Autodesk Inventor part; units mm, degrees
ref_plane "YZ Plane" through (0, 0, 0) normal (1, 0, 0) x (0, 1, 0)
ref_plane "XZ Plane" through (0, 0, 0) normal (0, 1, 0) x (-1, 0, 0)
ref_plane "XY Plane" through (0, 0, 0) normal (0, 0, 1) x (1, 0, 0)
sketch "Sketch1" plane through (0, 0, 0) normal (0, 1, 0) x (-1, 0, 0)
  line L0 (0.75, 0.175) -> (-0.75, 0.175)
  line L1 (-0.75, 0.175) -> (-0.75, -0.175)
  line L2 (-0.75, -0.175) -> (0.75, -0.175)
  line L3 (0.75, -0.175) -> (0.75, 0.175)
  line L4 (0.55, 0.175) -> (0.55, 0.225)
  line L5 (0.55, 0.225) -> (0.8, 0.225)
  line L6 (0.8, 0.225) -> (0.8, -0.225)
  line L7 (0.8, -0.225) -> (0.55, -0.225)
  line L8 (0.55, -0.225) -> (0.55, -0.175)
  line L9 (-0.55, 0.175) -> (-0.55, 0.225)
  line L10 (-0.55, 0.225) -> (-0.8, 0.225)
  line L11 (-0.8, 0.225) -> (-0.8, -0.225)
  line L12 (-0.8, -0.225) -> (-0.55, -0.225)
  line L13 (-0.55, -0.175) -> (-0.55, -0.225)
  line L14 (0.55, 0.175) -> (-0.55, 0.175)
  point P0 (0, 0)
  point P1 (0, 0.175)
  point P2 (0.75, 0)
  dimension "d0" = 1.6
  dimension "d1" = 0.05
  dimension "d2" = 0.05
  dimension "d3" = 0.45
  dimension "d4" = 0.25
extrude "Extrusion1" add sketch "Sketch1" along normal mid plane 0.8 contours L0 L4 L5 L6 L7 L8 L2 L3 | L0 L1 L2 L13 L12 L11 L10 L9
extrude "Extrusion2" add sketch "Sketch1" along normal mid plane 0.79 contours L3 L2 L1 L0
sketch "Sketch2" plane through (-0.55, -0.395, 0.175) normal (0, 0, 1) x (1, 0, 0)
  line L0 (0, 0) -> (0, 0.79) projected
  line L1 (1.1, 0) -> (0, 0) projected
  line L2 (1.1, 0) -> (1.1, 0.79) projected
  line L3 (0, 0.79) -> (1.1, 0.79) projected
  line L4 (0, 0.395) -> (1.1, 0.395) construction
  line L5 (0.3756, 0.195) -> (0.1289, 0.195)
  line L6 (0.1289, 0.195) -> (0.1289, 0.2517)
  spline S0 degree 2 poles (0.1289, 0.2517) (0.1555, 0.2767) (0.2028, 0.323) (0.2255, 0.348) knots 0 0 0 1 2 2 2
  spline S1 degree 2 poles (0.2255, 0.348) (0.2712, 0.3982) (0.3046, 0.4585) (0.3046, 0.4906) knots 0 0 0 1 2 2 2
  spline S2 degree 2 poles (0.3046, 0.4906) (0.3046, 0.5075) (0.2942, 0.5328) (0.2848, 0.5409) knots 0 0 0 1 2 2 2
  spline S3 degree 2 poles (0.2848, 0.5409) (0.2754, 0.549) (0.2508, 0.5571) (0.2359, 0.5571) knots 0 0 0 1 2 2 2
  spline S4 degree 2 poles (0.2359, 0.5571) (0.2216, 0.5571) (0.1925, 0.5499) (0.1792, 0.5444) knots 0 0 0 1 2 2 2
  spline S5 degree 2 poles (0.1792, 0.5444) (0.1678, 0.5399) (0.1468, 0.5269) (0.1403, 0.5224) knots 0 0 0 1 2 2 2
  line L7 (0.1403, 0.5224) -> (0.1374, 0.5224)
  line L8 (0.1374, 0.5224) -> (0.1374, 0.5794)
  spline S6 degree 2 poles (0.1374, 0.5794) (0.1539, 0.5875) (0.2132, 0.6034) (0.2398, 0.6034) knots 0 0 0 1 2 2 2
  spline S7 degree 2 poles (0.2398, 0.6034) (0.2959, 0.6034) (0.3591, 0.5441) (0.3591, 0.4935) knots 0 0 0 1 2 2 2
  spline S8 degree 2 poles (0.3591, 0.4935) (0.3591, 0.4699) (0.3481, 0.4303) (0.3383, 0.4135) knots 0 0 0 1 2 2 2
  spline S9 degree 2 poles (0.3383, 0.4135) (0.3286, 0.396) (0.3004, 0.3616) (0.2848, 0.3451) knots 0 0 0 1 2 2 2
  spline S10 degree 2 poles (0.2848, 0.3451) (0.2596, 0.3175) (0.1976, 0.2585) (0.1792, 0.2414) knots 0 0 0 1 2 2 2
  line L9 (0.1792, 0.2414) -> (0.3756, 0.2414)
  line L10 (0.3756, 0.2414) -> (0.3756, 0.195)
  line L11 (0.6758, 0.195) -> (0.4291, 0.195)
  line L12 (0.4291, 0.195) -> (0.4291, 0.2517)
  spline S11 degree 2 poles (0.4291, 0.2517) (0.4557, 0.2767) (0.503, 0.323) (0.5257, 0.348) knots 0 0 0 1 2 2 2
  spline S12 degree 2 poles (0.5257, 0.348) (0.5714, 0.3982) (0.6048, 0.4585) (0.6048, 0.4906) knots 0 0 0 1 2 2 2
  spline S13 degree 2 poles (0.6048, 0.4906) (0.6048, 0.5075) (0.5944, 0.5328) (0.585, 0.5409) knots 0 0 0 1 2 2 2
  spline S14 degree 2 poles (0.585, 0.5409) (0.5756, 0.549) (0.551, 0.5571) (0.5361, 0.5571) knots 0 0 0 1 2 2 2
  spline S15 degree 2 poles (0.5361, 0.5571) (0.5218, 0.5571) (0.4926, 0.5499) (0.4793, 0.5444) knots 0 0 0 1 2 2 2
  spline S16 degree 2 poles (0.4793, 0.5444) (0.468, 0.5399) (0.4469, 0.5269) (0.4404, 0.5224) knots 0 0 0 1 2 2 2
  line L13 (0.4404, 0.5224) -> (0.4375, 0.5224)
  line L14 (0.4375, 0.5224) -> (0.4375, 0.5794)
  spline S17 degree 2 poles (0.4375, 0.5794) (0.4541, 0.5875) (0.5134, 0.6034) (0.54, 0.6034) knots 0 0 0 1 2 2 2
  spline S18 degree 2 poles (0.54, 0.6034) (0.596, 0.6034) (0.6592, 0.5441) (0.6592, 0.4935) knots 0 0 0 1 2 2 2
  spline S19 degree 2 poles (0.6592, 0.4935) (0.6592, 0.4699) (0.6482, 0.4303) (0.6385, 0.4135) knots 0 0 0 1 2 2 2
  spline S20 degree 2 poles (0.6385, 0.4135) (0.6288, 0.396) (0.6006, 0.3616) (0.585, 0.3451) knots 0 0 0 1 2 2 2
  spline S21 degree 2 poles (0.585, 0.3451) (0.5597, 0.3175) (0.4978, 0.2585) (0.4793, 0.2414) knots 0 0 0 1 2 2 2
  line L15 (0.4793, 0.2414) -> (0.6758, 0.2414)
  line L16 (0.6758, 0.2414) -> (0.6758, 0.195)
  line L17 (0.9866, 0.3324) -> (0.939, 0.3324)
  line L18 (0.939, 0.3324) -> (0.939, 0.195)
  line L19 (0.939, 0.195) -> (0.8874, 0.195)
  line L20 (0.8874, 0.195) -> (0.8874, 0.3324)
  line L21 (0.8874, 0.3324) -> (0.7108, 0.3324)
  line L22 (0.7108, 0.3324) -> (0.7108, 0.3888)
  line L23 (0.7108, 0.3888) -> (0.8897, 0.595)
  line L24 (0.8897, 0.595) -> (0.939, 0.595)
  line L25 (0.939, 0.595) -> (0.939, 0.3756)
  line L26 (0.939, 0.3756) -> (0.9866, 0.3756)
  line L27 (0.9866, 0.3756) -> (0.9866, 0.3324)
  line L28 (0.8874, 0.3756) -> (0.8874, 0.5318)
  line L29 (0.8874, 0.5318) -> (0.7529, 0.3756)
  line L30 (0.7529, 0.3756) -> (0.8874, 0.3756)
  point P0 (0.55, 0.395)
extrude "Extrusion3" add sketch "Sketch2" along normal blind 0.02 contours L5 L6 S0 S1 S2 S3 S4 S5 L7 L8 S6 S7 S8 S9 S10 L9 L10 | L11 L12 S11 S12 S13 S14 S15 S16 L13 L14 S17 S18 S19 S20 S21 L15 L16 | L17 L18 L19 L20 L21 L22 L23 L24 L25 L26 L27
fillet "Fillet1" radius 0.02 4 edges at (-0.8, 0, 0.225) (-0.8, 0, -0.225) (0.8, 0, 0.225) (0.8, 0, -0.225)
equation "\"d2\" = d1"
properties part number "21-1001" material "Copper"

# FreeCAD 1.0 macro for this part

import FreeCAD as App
import Part
import Sketcher
Q = App.Units.Quantity


def edges_at(feature, points):
    """Names of the edges that pass closest to the given points."""
    edges = feature.Shape.Edges
    near = lambda p: min(range(len(edges)), key=lambda i: edges[i].distToShape(Part.Vertex(*p))[0])
    return sorted({f"Edge{near(p) + 1}" for p in points})


def add_polygon(sketch, points):
    """Adds a closed chain of lines whose ends are joined by coincident constraints."""
    first, n = sketch.GeometryCount, len(points)
    for a, b in zip(points, points[1:] + points[:1]):
        sketch.addGeometry(Part.LineSegment(App.Vector(*a, 0), App.Vector(*b, 0)), False)
    for i in range(n):
        sketch.addConstraint(Sketcher.Constraint("Coincident", first + i, 2, first + (i + 1) % n, 1))

doc = App.newDocument("Part")
body = doc.addObject("PartDesign::Body", "Body")
body.AllowCompound = True

# Sketch on XZ plane
sketch1 = body.newObject("Sketcher::SketchObject", "Sketch")
sketch1.AttachmentSupport = (doc.getObject("XZ_Plane"), [""])
sketch1.MapMode = "FlatFace"
add_polygon(sketch1, [(-0.55, 0.17), (-0.75, 0.17), (-0.75, -0.17), (-0.55, -0.17), (-0.55, -0.23), (-0.8, -0.23), (-0.8, 0.23), (-0.55, 0.23)])  # lines 0-7
add_polygon(sketch1, [(0.75, 0.17), (0.55, 0.17), (0.55, 0.23), (0.8, 0.23), (0.8, -0.23), (0.55, -0.23), (0.55, -0.17), (0.75, -0.17)])  # lines 8-15
sketch1.addConstraint(Sketcher.Constraint("Horizontal", 0))
sketch1.addConstraint(Sketcher.Constraint("Vertical", 1))
sketch1.addConstraint(Sketcher.Constraint("Horizontal", 2))
sketch1.addConstraint(Sketcher.Constraint("Vertical", 3))
sketch1.addConstraint(Sketcher.Constraint("Horizontal", 4))
sketch1.addConstraint(Sketcher.Constraint("Vertical", 5))
sketch1.addConstraint(Sketcher.Constraint("Horizontal", 6))
sketch1.addConstraint(Sketcher.Constraint("Vertical", 7))
sketch1.addConstraint(Sketcher.Constraint("Horizontal", 8))
sketch1.addConstraint(Sketcher.Constraint("Vertical", 9))
sketch1.addConstraint(Sketcher.Constraint("Horizontal", 10))
sketch1.addConstraint(Sketcher.Constraint("Vertical", 11))
sketch1.addConstraint(Sketcher.Constraint("Horizontal", 12))
sketch1.addConstraint(Sketcher.Constraint("Vertical", 13))
sketch1.addConstraint(Sketcher.Constraint("Horizontal", 14))
sketch1.addConstraint(Sketcher.Constraint("Vertical", 15))
sketch1.addConstraint(Sketcher.Constraint("Symmetric", 2, 2, 8, 2, -1, 1))
sketch1.addConstraint(Sketcher.Constraint("Symmetric", 4, 2, 10, 2, -1, 1))
sketch1.addConstraint(Sketcher.Constraint("Symmetric", 6, 2, 12, 2, -1, 1))
sketch1.addConstraint(Sketcher.Constraint("Symmetric", 0, 2, 14, 2, -1, 1))
sketch1.addConstraint(Sketcher.Constraint("Symmetric", 7, 2, 8, 2, -2))
sketch1.addConstraint(Sketcher.Constraint("Horizontal", 6, 2, 9, 2))
sketch1.addConstraint(Sketcher.Constraint("DistanceX", 4, 2, 4, 1, 0.25))
sketch1.addConstraint(Sketcher.Constraint("DistanceY", 3, 2, 3, 1, 0.05))
sketch1.addConstraint(Sketcher.Constraint("DistanceY", 5, 1, 5, 2, 0.45))
sketch1.addConstraint(Sketcher.Constraint("DistanceX", 4, 2, 1, 2, 0.05))
sketch1.addConstraint(Sketcher.Constraint("DistanceX", 4, 2, -1, 1, 0.8))
pad1 = body.newObject("PartDesign::Pad", "Pad")
pad1.Profile = sketch1
pad1.Length = 0.8
pad1.Midplane = True

# Sketch on XZ plane
sketch2 = body.newObject("Sketcher::SketchObject", "Sketch001")
sketch2.AttachmentSupport = (doc.getObject("XZ_Plane"), [""])
sketch2.MapMode = "FlatFace"
add_polygon(sketch2, [(-0.75, -0.17), (-0.75, 0.17), (0.75, 0.17), (0.75, -0.17)])  # lines 0-3
sketch2.addConstraint(Sketcher.Constraint("Vertical", 0))
sketch2.addConstraint(Sketcher.Constraint("Horizontal", 1))
sketch2.addConstraint(Sketcher.Constraint("Vertical", 2))
sketch2.addConstraint(Sketcher.Constraint("Horizontal", 3))
sketch2.addConstraint(Sketcher.Constraint("Symmetric", 0, 2, 2, 2, -1, 1))
sketch2.addConstraint(Sketcher.Constraint("DistanceX", 1, 1, 1, 2, 1.5))
sketch2.addConstraint(Sketcher.Constraint("DistanceY", 0, 1, 0, 2, 0.35))
pad2 = body.newObject("PartDesign::Pad", "Pad001")
pad2.Profile = sketch2
pad2.Length = 0.79
pad2.Midplane = True

# Sketch on XY plane
sketch3 = body.newObject("Sketcher::SketchObject", "Sketch002")
sketch3.AttachmentSupport = (doc.getObject("XY_Plane"), [""])
sketch3.MapMode = "FlatFace"
sketch3.AttachmentOffset = App.Placement(App.Vector(0, 0, 0.175), App.Rotation())
sketch3.addGeometry(Part.LineSegment(App.Vector(-0.4211, -0.2, 0), App.Vector(-0.1744, -0.2, 0)), False)  # 0
sketch3.addGeometry(Part.LineSegment(App.Vector(-0.1744, -0.2, 0), App.Vector(-0.1744, -0.1536, 0)), False)  # 1
sketch3.addGeometry(Part.LineSegment(App.Vector(-0.1744, -0.1536, 0), App.Vector(-0.3708, -0.1536, 0)), False)  # 2
sketch3.addGeometry(Part.BSplineCurve([App.Vector(-0.2652, -0.0499, 0), App.Vector(-0.2904, -0.0775, 0), App.Vector(-0.3524, -0.1365, 0), App.Vector(-0.3708, -0.1536, 0)], [3, 1, 3], [0, 1, 2], False, 2, [1, 1, 1, 1], False), False)  # 3
sketch3.addGeometry(Part.BSplineCurve([App.Vector(-0.2117, 0.0185, 0), App.Vector(-0.2214, 0.001, 0), App.Vector(-0.2496, -0.0334, 0), App.Vector(-0.2652, -0.0499, 0)], [3, 1, 3], [0, 1, 2], False, 2, [1, 1, 1, 1], False), False)  # 4
sketch3.addGeometry(Part.BSplineCurve([App.Vector(-0.1909, 0.0985, 0), App.Vector(-0.1909, 0.0749, 0), App.Vector(-0.2019, 0.0353, 0), App.Vector(-0.2117, 0.0185, 0)], [3, 1, 3], [0, 1, 2], False, 2, [1, 1, 1, 1], False), False)  # 5
sketch3.addGeometry(Part.BSplineCurve([App.Vector(-0.3102, 0.2084, 0), App.Vector(-0.2541, 0.2084, 0), App.Vector(-0.1909, 0.1491, 0), App.Vector(-0.1909, 0.0985, 0)], [3, 1, 3], [0, 1, 2], False, 2, [1, 1, 1, 1], False), False)  # 6
sketch3.addGeometry(Part.BSplineCurve([App.Vector(-0.4126, 0.1844, 0), App.Vector(-0.3961, 0.1925, 0), App.Vector(-0.3368, 0.2084, 0), App.Vector(-0.3102, 0.2084, 0)], [3, 1, 3], [0, 1, 2], False, 2, [1, 1, 1, 1], False), False)  # 7
sketch3.addGeometry(Part.LineSegment(App.Vector(-0.4126, 0.1844, 0), App.Vector(-0.4126, 0.1274, 0)), False)  # 8
sketch3.addGeometry(Part.LineSegment(App.Vector(-0.4126, 0.1274, 0), App.Vector(-0.4097, 0.1274, 0)), False)  # 9
sketch3.addGeometry(Part.BSplineCurve([App.Vector(-0.3708, 0.1494, 0), App.Vector(-0.3822, 0.1449, 0), App.Vector(-0.4032, 0.1319, 0), App.Vector(-0.4097, 0.1274, 0)], [3, 1, 3], [0, 1, 2], False, 2, [1, 1, 1, 1], False), False)  # 10
sketch3.addGeometry(Part.BSplineCurve([App.Vector(-0.3141, 0.1621, 0), App.Vector(-0.3284, 0.1621, 0), App.Vector(-0.3575, 0.1549, 0), App.Vector(-0.3708, 0.1494, 0)], [3, 1, 3], [0, 1, 2], False, 2, [1, 1, 1, 1], False), False)  # 11
sketch3.addGeometry(Part.BSplineCurve([App.Vector(-0.2652, 0.1459, 0), App.Vector(-0.2746, 0.154, 0), App.Vector(-0.2992, 0.1621, 0), App.Vector(-0.3141, 0.1621, 0)], [3, 1, 3], [0, 1, 2], False, 2, [1, 1, 1, 1], False), False)  # 12
sketch3.addGeometry(Part.BSplineCurve([App.Vector(-0.2454, 0.0956, 0), App.Vector(-0.2454, 0.1125, 0), App.Vector(-0.2558, 0.1378, 0), App.Vector(-0.2652, 0.1459, 0)], [3, 1, 3], [0, 1, 2], False, 2, [1, 1, 1, 1], False), False)  # 13
sketch3.addGeometry(Part.BSplineCurve([App.Vector(-0.3245, -0.047, 0), App.Vector(-0.2788, 0.0032, 0), App.Vector(-0.2454, 0.0635, 0), App.Vector(-0.2454, 0.0956, 0)], [3, 1, 3], [0, 1, 2], False, 2, [1, 1, 1, 1], False), False)  # 14
sketch3.addGeometry(Part.BSplineCurve([App.Vector(-0.4211, -0.1433, 0), App.Vector(-0.3945, -0.1183, 0), App.Vector(-0.3472, -0.072, 0), App.Vector(-0.3245, -0.047, 0)], [3, 1, 3], [0, 1, 2], False, 2, [1, 1, 1, 1], False), False)  # 15
sketch3.addGeometry(Part.LineSegment(App.Vector(-0.4211, -0.1433, 0), App.Vector(-0.4211, -0.2, 0)), False)  # 16
sketch3.addGeometry(Part.LineSegment(App.Vector(-0.1209, -0.2, 0), App.Vector(0.1258, -0.2, 0)), False)  # 17
sketch3.addGeometry(Part.LineSegment(App.Vector(0.1258, -0.2, 0), App.Vector(0.1258, -0.1536, 0)), False)  # 18
sketch3.addGeometry(Part.LineSegment(App.Vector(0.1258, -0.1536, 0), App.Vector(-0.0707, -0.1536, 0)), False)  # 19
sketch3.addGeometry(Part.BSplineCurve([App.Vector(0.035, -0.0499, 0), App.Vector(0.0097, -0.0775, 0), App.Vector(-0.0522, -0.1365, 0), App.Vector(-0.0707, -0.1536, 0)], [3, 1, 3], [0, 1, 2], False, 2, [1, 1, 1, 1], False), False)  # 20
sketch3.addGeometry(Part.BSplineCurve([App.Vector(0.0885, 0.0185, 0), App.Vector(0.0788, 0.001, 0), App.Vector(0.0506, -0.0334, 0), App.Vector(0.035, -0.0499, 0)], [3, 1, 3], [0, 1, 2], False, 2, [1, 1, 1, 1], False), False)  # 21
sketch3.addGeometry(Part.BSplineCurve([App.Vector(0.1092, 0.0985, 0), App.Vector(0.1092, 0.0749, 0), App.Vector(0.0982, 0.0353, 0), App.Vector(0.0885, 0.0185, 0)], [3, 1, 3], [0, 1, 2], False, 2, [1, 1, 1, 1], False), False)  # 22
sketch3.addGeometry(Part.BSplineCurve([App.Vector(-0.01, 0.2084, 0), App.Vector(0.046, 0.2084, 0), App.Vector(0.1092, 0.1491, 0), App.Vector(0.1092, 0.0985, 0)], [3, 1, 3], [0, 1, 2], False, 2, [1, 1, 1, 1], False), False)  # 23
sketch3.addGeometry(Part.BSplineCurve([App.Vector(-0.1125, 0.1844, 0), App.Vector(-0.0959, 0.1925, 0), App.Vector(-0.0366, 0.2084, 0), App.Vector(-0.01, 0.2084, 0)], [3, 1, 3], [0, 1, 2], False, 2, [1, 1, 1, 1], False), False)  # 24
sketch3.addGeometry(Part.LineSegment(App.Vector(-0.1125, 0.1844, 0), App.Vector(-0.1125, 0.1274, 0)), False)  # 25
sketch3.addGeometry(Part.LineSegment(App.Vector(-0.1125, 0.1274, 0), App.Vector(-0.1096, 0.1274, 0)), False)  # 26
sketch3.addGeometry(Part.BSplineCurve([App.Vector(-0.0707, 0.1494, 0), App.Vector(-0.082, 0.1449, 0), App.Vector(-0.1031, 0.1319, 0), App.Vector(-0.1096, 0.1274, 0)], [3, 1, 3], [0, 1, 2], False, 2, [1, 1, 1, 1], False), False)  # 27
sketch3.addGeometry(Part.BSplineCurve([App.Vector(-0.0139, 0.1621, 0), App.Vector(-0.0282, 0.1621, 0), App.Vector(-0.0574, 0.1549, 0), App.Vector(-0.0707, 0.1494, 0)], [3, 1, 3], [0, 1, 2], False, 2, [1, 1, 1, 1], False), False)  # 28
sketch3.addGeometry(Part.BSplineCurve([App.Vector(0.035, 0.1459, 0), App.Vector(0.0256, 0.154, 0), App.Vector(0.001, 0.1621, 0), App.Vector(-0.0139, 0.1621, 0)], [3, 1, 3], [0, 1, 2], False, 2, [1, 1, 1, 1], False), False)  # 29
sketch3.addGeometry(Part.BSplineCurve([App.Vector(0.0548, 0.0956, 0), App.Vector(0.0548, 0.1125, 0), App.Vector(0.0444, 0.1378, 0), App.Vector(0.035, 0.1459, 0)], [3, 1, 3], [0, 1, 2], False, 2, [1, 1, 1, 1], False), False)  # 30
sketch3.addGeometry(Part.BSplineCurve([App.Vector(-0.0243, -0.047, 0), App.Vector(0.0214, 0.0032, 0), App.Vector(0.0548, 0.0635, 0), App.Vector(0.0548, 0.0956, 0)], [3, 1, 3], [0, 1, 2], False, 2, [1, 1, 1, 1], False), False)  # 31
sketch3.addGeometry(Part.BSplineCurve([App.Vector(-0.1209, -0.1433, 0), App.Vector(-0.0943, -0.1183, 0), App.Vector(-0.047, -0.072, 0), App.Vector(-0.0243, -0.047, 0)], [3, 1, 3], [0, 1, 2], False, 2, [1, 1, 1, 1], False), False)  # 32
sketch3.addGeometry(Part.LineSegment(App.Vector(-0.1209, -0.1433, 0), App.Vector(-0.1209, -0.2, 0)), False)  # 33
add_polygon(sketch3, [(0.389, -0.0626), (0.4366, -0.0626), (0.4366, -0.0194), (0.389, -0.0194), (0.389, 0.2), (0.3397, 0.2), (0.1608, -0.0062), (0.1608, -0.0626), (0.3374, -0.0626), (0.3374, -0.2), (0.389, -0.2)])  # lines 34-44
add_polygon(sketch3, [(0.3374, 0.1368), (0.3374, -0.0194), (0.2029, -0.0194)])  # lines 45-47
sketch3.addConstraint(Sketcher.Constraint("Block", 3))
sketch3.addConstraint(Sketcher.Constraint("Block", 4))
sketch3.addConstraint(Sketcher.Constraint("Block", 5))
sketch3.addConstraint(Sketcher.Constraint("Block", 6))
sketch3.addConstraint(Sketcher.Constraint("Block", 7))
sketch3.addConstraint(Sketcher.Constraint("Block", 10))
sketch3.addConstraint(Sketcher.Constraint("Block", 11))
sketch3.addConstraint(Sketcher.Constraint("Block", 12))
sketch3.addConstraint(Sketcher.Constraint("Block", 13))
sketch3.addConstraint(Sketcher.Constraint("Block", 14))
sketch3.addConstraint(Sketcher.Constraint("Block", 15))
sketch3.addConstraint(Sketcher.Constraint("Block", 20))
sketch3.addConstraint(Sketcher.Constraint("Block", 21))
sketch3.addConstraint(Sketcher.Constraint("Block", 22))
sketch3.addConstraint(Sketcher.Constraint("Block", 23))
sketch3.addConstraint(Sketcher.Constraint("Block", 24))
sketch3.addConstraint(Sketcher.Constraint("Block", 27))
sketch3.addConstraint(Sketcher.Constraint("Block", 28))
sketch3.addConstraint(Sketcher.Constraint("Block", 29))
sketch3.addConstraint(Sketcher.Constraint("Block", 30))
sketch3.addConstraint(Sketcher.Constraint("Block", 31))
sketch3.addConstraint(Sketcher.Constraint("Block", 32))
sketch3.addConstraint(Sketcher.Constraint("Coincident", 0, 2, 1, 1))
sketch3.addConstraint(Sketcher.Constraint("Coincident", 1, 2, 2, 1))
sketch3.addConstraint(Sketcher.Constraint("Coincident", 2, 2, 3, 2))
sketch3.addConstraint(Sketcher.Constraint("Coincident", 7, 1, 8, 1))
sketch3.addConstraint(Sketcher.Constraint("Coincident", 8, 2, 9, 1))
sketch3.addConstraint(Sketcher.Constraint("Coincident", 9, 2, 10, 2))
sketch3.addConstraint(Sketcher.Constraint("Coincident", 15, 1, 16, 1))
sketch3.addConstraint(Sketcher.Constraint("Coincident", 16, 2, 0, 1))
sketch3.addConstraint(Sketcher.Constraint("Coincident", 17, 2, 18, 1))
sketch3.addConstraint(Sketcher.Constraint("Coincident", 18, 2, 19, 1))
sketch3.addConstraint(Sketcher.Constraint("Coincident", 19, 2, 20, 2))
sketch3.addConstraint(Sketcher.Constraint("Coincident", 24, 1, 25, 1))
sketch3.addConstraint(Sketcher.Constraint("Coincident", 25, 2, 26, 1))
sketch3.addConstraint(Sketcher.Constraint("Coincident", 26, 2, 27, 2))
sketch3.addConstraint(Sketcher.Constraint("Coincident", 32, 1, 33, 1))
sketch3.addConstraint(Sketcher.Constraint("Coincident", 33, 2, 17, 1))
sketch3.addConstraint(Sketcher.Constraint("Horizontal", 0))
sketch3.addConstraint(Sketcher.Constraint("Vertical", 1))
sketch3.addConstraint(Sketcher.Constraint("Horizontal", 2))
sketch3.addConstraint(Sketcher.Constraint("Vertical", 8))
sketch3.addConstraint(Sketcher.Constraint("Horizontal", 9))
sketch3.addConstraint(Sketcher.Constraint("Vertical", 16))
sketch3.addConstraint(Sketcher.Constraint("Horizontal", 17))
sketch3.addConstraint(Sketcher.Constraint("Vertical", 18))
sketch3.addConstraint(Sketcher.Constraint("Horizontal", 19))
sketch3.addConstraint(Sketcher.Constraint("Vertical", 25))
sketch3.addConstraint(Sketcher.Constraint("Horizontal", 26))
sketch3.addConstraint(Sketcher.Constraint("Vertical", 33))
sketch3.addConstraint(Sketcher.Constraint("Horizontal", 34))
sketch3.addConstraint(Sketcher.Constraint("Vertical", 35))
sketch3.addConstraint(Sketcher.Constraint("Horizontal", 36))
sketch3.addConstraint(Sketcher.Constraint("Vertical", 37))
sketch3.addConstraint(Sketcher.Constraint("Horizontal", 38))
sketch3.addConstraint(Sketcher.Constraint("Vertical", 40))
sketch3.addConstraint(Sketcher.Constraint("Horizontal", 41))
sketch3.addConstraint(Sketcher.Constraint("Vertical", 42))
sketch3.addConstraint(Sketcher.Constraint("Horizontal", 43))
sketch3.addConstraint(Sketcher.Constraint("Vertical", 44))
sketch3.addConstraint(Sketcher.Constraint("Vertical", 45))
sketch3.addConstraint(Sketcher.Constraint("Horizontal", 46))
sketch3.addConstraint(Sketcher.Constraint("Symmetric", 37, 2, 43, 2, -1))
sketch3.addConstraint(Sketcher.Constraint("Horizontal", 16, 2, 17, 2))
sketch3.addConstraint(Sketcher.Constraint("Horizontal", 34, 2, 40, 2))
sketch3.addConstraint(Sketcher.Constraint("Horizontal", 33, 2, 42, 2))
sketch3.addConstraint(Sketcher.Constraint("Horizontal", 36, 2, 45, 2))
sketch3.addConstraint(Sketcher.Constraint("Vertical", 42, 2, 45, 2))
sketch3.addConstraint(Sketcher.Constraint("Equal", 0, 17))
sketch3.addConstraint(Sketcher.Constraint("DistanceY", 0, 2, -1, 1, 0.2))
sketch3.addConstraint(Sketcher.Constraint("Angle", 47, Q("49.269 deg")))
sketch3.addConstraint(Sketcher.Constraint("DistanceY", 34, 2, 26, 2, 0.19))
sketch3.addConstraint(Sketcher.Constraint("Distance", 39, 0.273))
sketch3.addConstraint(Sketcher.Constraint("DistanceX", 0, 1, 0, 2, 0.2467))
sketch3.addConstraint(Sketcher.Constraint("DistanceX", 34, 1, 34, 2, 0.0476))
sketch3.addConstraint(Sketcher.Constraint("DistanceX", 38, 2, 38, 1, 0.0493))
sketch3.addConstraint(Sketcher.Constraint("DistanceX", 41, 1, 41, 2, 0.1766))
sketch3.addConstraint(Sketcher.Constraint("DistanceX", 43, 1, 43, 2, 0.0516))
sketch3.addConstraint(Sketcher.Constraint("DistanceX", 46, 2, 46, 1, 0.1345))
sketch3.addConstraint(Sketcher.Constraint("DistanceY", 35, 1, 35, 2, 0.0432))
sketch3.addConstraint(Sketcher.Constraint("DistanceX", -1, 1, 36, 2, 0.389))
pad3 = body.newObject("PartDesign::Pad", "Pad002")
pad3.Profile = sketch3
pad3.Length = 0.02
doc.recompute()

fillet = body.newObject("PartDesign::Fillet", "Fillet")
fillet.Base = (pad3, edges_at(pad3, [
    (-0.8, 0, 0.225),
    (-0.8, 0, -0.225),
    (0.8, 0, 0.225),
    (0.8, 0, -0.225),
]))
fillet.Radius = 0.02

doc.recompute()
